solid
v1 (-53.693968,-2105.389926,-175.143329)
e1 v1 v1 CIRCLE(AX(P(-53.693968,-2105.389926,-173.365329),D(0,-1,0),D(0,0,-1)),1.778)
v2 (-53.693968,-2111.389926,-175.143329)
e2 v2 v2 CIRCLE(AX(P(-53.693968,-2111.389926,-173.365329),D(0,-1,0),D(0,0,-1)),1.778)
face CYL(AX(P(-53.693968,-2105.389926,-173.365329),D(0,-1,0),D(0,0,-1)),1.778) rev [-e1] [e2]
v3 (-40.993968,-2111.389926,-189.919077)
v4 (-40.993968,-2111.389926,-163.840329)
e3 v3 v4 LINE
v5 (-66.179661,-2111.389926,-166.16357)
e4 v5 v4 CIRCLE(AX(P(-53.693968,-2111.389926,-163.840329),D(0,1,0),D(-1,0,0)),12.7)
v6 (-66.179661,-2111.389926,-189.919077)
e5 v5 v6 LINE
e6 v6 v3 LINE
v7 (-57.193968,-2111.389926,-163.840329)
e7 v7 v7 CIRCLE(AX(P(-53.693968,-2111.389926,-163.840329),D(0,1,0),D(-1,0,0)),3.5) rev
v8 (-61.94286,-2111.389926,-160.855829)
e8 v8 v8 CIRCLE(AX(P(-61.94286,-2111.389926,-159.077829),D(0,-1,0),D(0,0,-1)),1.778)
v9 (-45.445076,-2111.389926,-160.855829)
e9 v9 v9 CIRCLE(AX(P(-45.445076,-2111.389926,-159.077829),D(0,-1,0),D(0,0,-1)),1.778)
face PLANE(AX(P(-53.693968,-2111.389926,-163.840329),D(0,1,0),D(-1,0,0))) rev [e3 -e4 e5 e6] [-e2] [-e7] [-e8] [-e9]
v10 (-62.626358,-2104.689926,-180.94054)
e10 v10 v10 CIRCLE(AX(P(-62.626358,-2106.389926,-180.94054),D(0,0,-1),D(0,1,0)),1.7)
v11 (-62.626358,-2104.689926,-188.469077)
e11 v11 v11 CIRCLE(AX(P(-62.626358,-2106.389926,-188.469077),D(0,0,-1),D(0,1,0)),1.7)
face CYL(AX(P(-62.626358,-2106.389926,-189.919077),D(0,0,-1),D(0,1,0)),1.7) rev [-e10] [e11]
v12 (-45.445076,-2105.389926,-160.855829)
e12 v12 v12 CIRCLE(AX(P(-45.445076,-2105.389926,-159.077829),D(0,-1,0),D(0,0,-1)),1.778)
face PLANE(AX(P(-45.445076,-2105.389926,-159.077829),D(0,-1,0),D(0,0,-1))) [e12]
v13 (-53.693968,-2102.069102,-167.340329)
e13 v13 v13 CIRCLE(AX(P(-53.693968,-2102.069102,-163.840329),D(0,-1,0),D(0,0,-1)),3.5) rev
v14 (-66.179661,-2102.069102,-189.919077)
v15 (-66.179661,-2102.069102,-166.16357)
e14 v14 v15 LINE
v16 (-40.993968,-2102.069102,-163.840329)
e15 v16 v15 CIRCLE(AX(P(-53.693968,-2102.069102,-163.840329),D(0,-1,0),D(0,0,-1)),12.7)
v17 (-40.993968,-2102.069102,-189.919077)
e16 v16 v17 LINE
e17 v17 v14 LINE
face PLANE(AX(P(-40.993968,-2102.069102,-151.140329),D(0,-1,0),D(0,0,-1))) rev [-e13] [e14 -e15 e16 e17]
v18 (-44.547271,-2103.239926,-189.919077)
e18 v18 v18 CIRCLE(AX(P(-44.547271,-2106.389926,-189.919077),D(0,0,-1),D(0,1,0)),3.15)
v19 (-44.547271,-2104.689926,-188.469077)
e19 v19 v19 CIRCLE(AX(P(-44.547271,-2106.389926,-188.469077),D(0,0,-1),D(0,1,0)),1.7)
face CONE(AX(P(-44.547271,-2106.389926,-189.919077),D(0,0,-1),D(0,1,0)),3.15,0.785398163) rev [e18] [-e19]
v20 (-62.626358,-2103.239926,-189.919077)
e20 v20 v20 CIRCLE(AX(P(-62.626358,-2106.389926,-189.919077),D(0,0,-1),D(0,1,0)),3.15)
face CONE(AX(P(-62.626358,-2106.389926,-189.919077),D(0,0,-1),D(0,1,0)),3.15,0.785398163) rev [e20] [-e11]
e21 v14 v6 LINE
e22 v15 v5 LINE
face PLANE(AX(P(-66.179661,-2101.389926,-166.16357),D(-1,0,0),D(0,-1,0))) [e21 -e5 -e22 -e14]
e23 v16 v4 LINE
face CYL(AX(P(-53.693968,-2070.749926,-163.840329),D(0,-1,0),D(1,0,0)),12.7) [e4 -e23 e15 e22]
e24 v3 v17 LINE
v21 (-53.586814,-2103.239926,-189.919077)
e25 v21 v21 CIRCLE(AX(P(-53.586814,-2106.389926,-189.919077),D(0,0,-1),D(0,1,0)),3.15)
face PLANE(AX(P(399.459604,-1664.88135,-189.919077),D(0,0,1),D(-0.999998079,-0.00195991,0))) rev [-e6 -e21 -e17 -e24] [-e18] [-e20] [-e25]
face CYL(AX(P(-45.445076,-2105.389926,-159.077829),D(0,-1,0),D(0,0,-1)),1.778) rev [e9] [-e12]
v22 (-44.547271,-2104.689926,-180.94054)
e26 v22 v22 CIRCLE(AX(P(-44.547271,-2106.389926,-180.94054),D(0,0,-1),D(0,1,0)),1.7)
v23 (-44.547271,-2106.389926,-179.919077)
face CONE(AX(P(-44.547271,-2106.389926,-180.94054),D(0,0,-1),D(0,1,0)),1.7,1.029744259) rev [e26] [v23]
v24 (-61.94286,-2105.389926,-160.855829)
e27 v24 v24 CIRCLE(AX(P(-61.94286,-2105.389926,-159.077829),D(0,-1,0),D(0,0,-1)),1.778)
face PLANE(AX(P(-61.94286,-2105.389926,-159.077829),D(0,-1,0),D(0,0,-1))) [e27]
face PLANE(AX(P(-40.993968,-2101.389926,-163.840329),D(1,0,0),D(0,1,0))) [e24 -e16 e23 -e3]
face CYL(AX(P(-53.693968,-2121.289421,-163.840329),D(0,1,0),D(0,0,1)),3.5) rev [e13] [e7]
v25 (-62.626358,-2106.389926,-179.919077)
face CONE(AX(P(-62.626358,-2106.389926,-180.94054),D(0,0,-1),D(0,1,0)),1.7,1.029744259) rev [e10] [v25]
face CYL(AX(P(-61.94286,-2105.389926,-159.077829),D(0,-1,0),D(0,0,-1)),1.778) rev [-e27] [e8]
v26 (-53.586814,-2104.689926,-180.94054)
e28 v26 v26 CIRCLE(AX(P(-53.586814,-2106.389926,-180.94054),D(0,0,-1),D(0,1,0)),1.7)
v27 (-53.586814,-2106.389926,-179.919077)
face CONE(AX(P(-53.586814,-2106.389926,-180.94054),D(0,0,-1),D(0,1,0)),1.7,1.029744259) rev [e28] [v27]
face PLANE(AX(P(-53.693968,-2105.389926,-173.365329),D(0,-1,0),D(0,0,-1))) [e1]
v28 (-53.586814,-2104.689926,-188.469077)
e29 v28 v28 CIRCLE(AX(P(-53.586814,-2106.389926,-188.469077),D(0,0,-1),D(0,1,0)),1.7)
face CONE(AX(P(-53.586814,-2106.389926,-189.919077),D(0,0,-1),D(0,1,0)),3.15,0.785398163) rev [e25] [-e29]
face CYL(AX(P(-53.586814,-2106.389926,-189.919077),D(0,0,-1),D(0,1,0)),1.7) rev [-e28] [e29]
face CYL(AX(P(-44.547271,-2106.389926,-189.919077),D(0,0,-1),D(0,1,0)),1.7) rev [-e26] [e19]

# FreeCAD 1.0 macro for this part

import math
import FreeCAD as App
import Part
import Sketcher
Q = App.Units.Quantity

doc = App.newDocument("Part")
params = doc.addObject("Spreadsheet::Sheet", "Params")
for row, (alias, value) in enumerate([
    ("sketch1_diameter", "25.4 mm"),
    ("pad1_length", "40.64 mm"),
    ("sketch2_diameter", "7 mm"),
    ("pocket1_length", "40.64 mm"),
    ("pocket2_length", "6 mm"),
    ("sketch4_radius", "12.7 mm"),
    ("pad2_length", "10 mm"),
    ("sketch5_height", "10 mm"),
    ("pad3_length", "7.284789 mm"),
    ("pad4_length", "30.64 mm"),
    ("sketch7_height", "10 mm"),
    ("sketch7_width", "3.15 mm"),
    ("groove_angle", "360 deg"),
    ("linearpattern_pitch", "9.039543 mm"),
    ("linearpattern2_pitch", "9.039543 mm"),
    ("sketch8_height", "10 mm"),
    ("sketch8_width", "3.15 mm"),
    ("groove2_angle", "360 deg"),
    ("sketch9_height", "10 mm"),
    ("sketch9_width", "3.15 mm"),
    ("groove3_angle", "360 deg"),
], start=1):
    params.set(f"A{row}", alias)
    params.set(f"B{row}", "=" + value)
    params.setAlias(f"B{row}", alias)

body = doc.addObject("PartDesign::Body", "Body")

sketch1 = body.newObject("Sketcher::SketchObject", "Sketch")
sketch1.AttachmentSupport = (doc.getObject("XZ_Plane"), [""])
sketch1.MapMode = "FlatFace"
sketch1.AttachmentOffset = App.Placement(App.Vector(0, 0, 2111.389926), App.Rotation())
sketch1.addGeometry(Part.Circle(App.Vector(-53.693968, -163.840329, 0), App.Vector(0, 0, 1), 12.7), False)
sketch1.addConstraint(Sketcher.Constraint("Diameter", 0, Q("25.4 mm")))
sketch1.addConstraint(Sketcher.Constraint("DistanceY", 0, 3, -1, 1, Q("163.840329 mm")))
sketch1.addConstraint(Sketcher.Constraint("DistanceX", 0, 3, -1, 1, Q("53.693968 mm")))
sketch1.setExpression("Constraints[0]", "Params.sketch1_diameter")
pad1 = body.newObject("PartDesign::Pad", "Pad")
pad1.Profile = sketch1
pad1.setExpression("Length", "Params.pad1_length")
pad1.Reversed = True

sketch2 = body.newObject("Sketcher::SketchObject", "Sketch001")
sketch2.AttachmentSupport = (doc.getObject("XZ_Plane"), [""])
sketch2.MapMode = "FlatFace"
sketch2.AttachmentOffset = App.Placement(App.Vector(0, 0, 2070.749926), App.Rotation())
sketch2.addGeometry(Part.Circle(App.Vector(-53.693968, -163.840329, 0), App.Vector(0, 0, 1), 3.5), False)
sketch2.addConstraint(Sketcher.Constraint("Diameter", 0, Q("7 mm")))
sketch2.addConstraint(Sketcher.Constraint("DistanceY", 0, 3, -1, 1, Q("163.840329 mm")))
sketch2.addConstraint(Sketcher.Constraint("DistanceX", 0, 3, -1, 1, Q("53.693968 mm")))
sketch2.setExpression("Constraints[0]", "Params.sketch2_diameter")
pocket1 = body.newObject("PartDesign::Pocket", "Pocket")
pocket1.Profile = sketch2
pocket1.setExpression("Length", "Params.pocket1_length")
pocket1.Reversed = True

sketch3 = body.newObject("Sketcher::SketchObject", "Sketch002")
sketch3.AttachmentSupport = (doc.getObject("XZ_Plane"), [""])
sketch3.MapMode = "FlatFace"
sketch3.AttachmentOffset = App.Placement(App.Vector(0, 0, 2111.389926), App.Rotation())
sketch3.addGeometry(Part.Circle(App.Vector(-61.94286, -159.077829, 0), App.Vector(0, 0, 1), 1.778), False)
sketch3.addGeometry(Part.Circle(App.Vector(-53.693968, -173.365329, 0), App.Vector(0, 0, 1), 1.778), False)
sketch3.addGeometry(Part.Circle(App.Vector(-45.445076, -159.077829, 0), App.Vector(0, 0, 1), 1.778), False)
sketch3.addConstraint(Sketcher.Constraint("Equal", 0, 1))
sketch3.addConstraint(Sketcher.Constraint("Equal", 1, 2))
sketch3.addConstraint(Sketcher.Constraint("Horizontal", 0, 3, 2, 3))
sketch3.addConstraint(Sketcher.Constraint("Diameter", 0, Q("3.556 mm")))
sketch3.addConstraint(Sketcher.Constraint("DistanceY", 1, 3, 0, 3, Q("14.2875 mm")))
sketch3.addConstraint(Sketcher.Constraint("DistanceX", 0, 3, -1, 1, Q("61.94286 mm")))
sketch3.addConstraint(Sketcher.Constraint("DistanceY", 0, 3, -1, 1, Q("159.077829 mm")))
sketch3.addConstraint(Sketcher.Constraint("DistanceX", 0, 3, 1, 3, Q("8.248892 mm")))
sketch3.addConstraint(Sketcher.Constraint("DistanceX", 1, 3, 2, 3, Q("8.248892 mm")))
pocket2 = body.newObject("PartDesign::Pocket", "Pocket001")
pocket2.Profile = sketch3
pocket2.setExpression("Length", "Params.pocket2_length")

sketch4 = body.newObject("Sketcher::SketchObject", "Sketch003")
sketch4.AttachmentSupport = (doc.getObject("XZ_Plane"), [""])
sketch4.MapMode = "FlatFace"
sketch4.AttachmentOffset = App.Placement(App.Vector(0, 0, 2111.389926), App.Rotation())
sketch4.addGeometry(Part.LineSegment(App.Vector(-40.993968, -182.634288, 0), App.Vector(-40.993968, -163.840329, 0)), False)
sketch4.addGeometry(Part.ArcOfCircle(Part.Circle(App.Vector(-53.693968, -163.840329, 0), App.Vector(0, 0, 1), 12.7), math.radians(-169.459393), math.radians(0)), False)
sketch4.addGeometry(Part.LineSegment(App.Vector(-66.179661, -166.16357, 0), App.Vector(-66.179661, -182.634288, 0)), False)
sketch4.addGeometry(Part.LineSegment(App.Vector(-66.179661, -182.634288, 0), App.Vector(-40.993968, -182.634288, 0)), False)
sketch4.addConstraint(Sketcher.Constraint("Tangent", 0, 2, 1, 2))
sketch4.addConstraint(Sketcher.Constraint("Coincident", 1, 1, 2, 1))
sketch4.addConstraint(Sketcher.Constraint("Coincident", 2, 2, 3, 1))
sketch4.addConstraint(Sketcher.Constraint("Coincident", 3, 2, 0, 1))
sketch4.addConstraint(Sketcher.Constraint("Vertical", 0))
sketch4.addConstraint(Sketcher.Constraint("Vertical", 2))
sketch4.addConstraint(Sketcher.Constraint("Horizontal", 3))
sketch4.addConstraint(Sketcher.Constraint("Radius", 1, Q("12.7 mm")))
sketch4.addConstraint(Sketcher.Constraint("DistanceY", 0, 1, 0, 2, Q("18.793959 mm")))
sketch4.addConstraint(Sketcher.Constraint("DistanceX", 3, 1, 3, 2, Q("25.185694 mm")))
sketch4.addConstraint(Sketcher.Constraint("DistanceY", 1, 3, -1, 1, Q("163.840329 mm")))
sketch4.addConstraint(Sketcher.Constraint("DistanceX", 1, 1, -1, 1, Q("66.179661 mm")))
sketch4.setExpression("Constraints[7]", "Params.sketch4_radius")
pad2 = body.newObject("PartDesign::Pad", "Pad001")
pad2.Profile = sketch4
pad2.setExpression("Length", "Params.pad2_length")
pad2.Reversed = True

sketch5 = body.newObject("Sketcher::SketchObject", "Sketch004")
sketch5.AttachmentSupport = (doc.getObject("XY_Plane"), [""])
sketch5.MapMode = "FlatFace"
sketch5.AttachmentOffset = App.Placement(App.Vector(0, 0, -182.634288), App.Rotation())
sketch5.addGeometry(Part.LineSegment(App.Vector(-40.993968, -2101.389926, 0), App.Vector(-40.993968, -2111.389926, 0)), False)
sketch5.addGeometry(Part.LineSegment(App.Vector(-40.993968, -2111.389926, 0), App.Vector(-66.179661, -2111.389926, 0)), False)
sketch5.addGeometry(Part.LineSegment(App.Vector(-66.179661, -2111.389926, 0), App.Vector(-66.179661, -2101.389926, 0)), False)
sketch5.addGeometry(Part.LineSegment(App.Vector(-66.179661, -2101.389926, 0), App.Vector(-40.993968, -2101.389926, 0)), False)
sketch5.addConstraint(Sketcher.Constraint("Coincident", 0, 2, 1, 1))
sketch5.addConstraint(Sketcher.Constraint("Coincident", 1, 2, 2, 1))
sketch5.addConstraint(Sketcher.Constraint("Coincident", 2, 2, 3, 1))
sketch5.addConstraint(Sketcher.Constraint("Coincident", 3, 2, 0, 1))
sketch5.addConstraint(Sketcher.Constraint("Vertical", 0))
sketch5.addConstraint(Sketcher.Constraint("Horizontal", 1))
sketch5.addConstraint(Sketcher.Constraint("Vertical", 2))
sketch5.addConstraint(Sketcher.Constraint("Horizontal", 3))
sketch5.addConstraint(Sketcher.Constraint("DistanceY", 0, 2, 0, 1, Q("10 mm")))
sketch5.addConstraint(Sketcher.Constraint("DistanceX", 1, 2, 1, 1, Q("25.185694 mm")))
sketch5.addConstraint(Sketcher.Constraint("DistanceX", 1, 2, -1, 1, Q("66.179661 mm")))
sketch5.addConstraint(Sketcher.Constraint("DistanceY", 0, 2, -1, 1, Q("2111.389926 mm")))
sketch5.setExpression("Constraints[8]", "Params.sketch5_height")
pad3 = body.newObject("PartDesign::Pad", "Pad002")
pad3.Profile = sketch5
pad3.setExpression("Length", "Params.pad3_length")
pad3.Reversed = True

sketch6 = body.newObject("Sketcher::SketchObject", "Sketch005")
sketch6.AttachmentSupport = (doc.getObject("XZ_Plane"), [""])
sketch6.MapMode = "FlatFace"
sketch6.AttachmentOffset = App.Placement(App.Vector(0, 0, 2070.749926), App.Rotation())
sketch6.addGeometry(Part.LineSegment(App.Vector(-66.179661, -189.919077, 0), App.Vector(-66.179661, -163.840329, 0)), False)
sketch6.addGeometry(Part.ArcOfCircle(Part.Circle(App.Vector(-53.586814, -163.840329, 0), App.Vector(0, 0, 1), 12.592847), math.radians(180), math.radians(360)), False)
sketch6.addGeometry(Part.LineSegment(App.Vector(-40.993968, -163.840329, 0), App.Vector(-40.993968, -189.919077, 0)), False)
sketch6.addGeometry(Part.LineSegment(App.Vector(-40.993968, -189.919077, 0), App.Vector(-66.179661, -189.919077, 0)), False)
sketch6.addConstraint(Sketcher.Constraint("Tangent", 0, 2, 1, 1))
sketch6.addConstraint(Sketcher.Constraint("Tangent", 1, 2, 2, 1))
sketch6.addConstraint(Sketcher.Constraint("Coincident", 2, 2, 3, 1))
sketch6.addConstraint(Sketcher.Constraint("Coincident", 3, 2, 0, 1))
sketch6.addConstraint(Sketcher.Constraint("Vertical", 0))
sketch6.addConstraint(Sketcher.Constraint("Vertical", 2))
sketch6.addConstraint(Sketcher.Constraint("Horizontal", 3))
sketch6.addConstraint(Sketcher.Constraint("Radius", 1, Q("12.592847 mm")))
sketch6.addConstraint(Sketcher.Constraint("DistanceY", 0, 1, 0, 2, Q("26.078748 mm")))
sketch6.addConstraint(Sketcher.Constraint("DistanceY", 1, 3, -1, 1, Q("163.840329 mm")))
sketch6.addConstraint(Sketcher.Constraint("DistanceX", 0, 2, -1, 1, Q("66.179661 mm")))
pad4 = body.newObject("PartDesign::Pad", "Pad003")
pad4.Profile = sketch6
pad4.setExpression("Length", "Params.pad4_length")

sketch7 = body.newObject("Sketcher::SketchObject", "Sketch006")
sketch7.AttachmentSupport = (doc.getObject("YZ_Plane"), [""])
sketch7.MapMode = "FlatFace"
sketch7.AttachmentOffset = App.Placement(App.Vector(0, 0, -53.586814), App.Rotation())
sketch7.addGeometry(Part.LineSegment(App.Vector(-2075.749926, -179.919077, 0), App.Vector(-2075.749926, -189.919077, 0)), False)
sketch7.addGeometry(Part.LineSegment(App.Vector(-2075.749926, -189.919077, 0), App.Vector(-2072.599926, -189.919077, 0)), False)
sketch7.addGeometry(Part.LineSegment(App.Vector(-2072.599926, -189.919077, 0), App.Vector(-2074.049926, -188.469077, 0)), False)
sketch7.addGeometry(Part.LineSegment(App.Vector(-2074.049926, -188.469077, 0), App.Vector(-2074.049926, -180.94054, 0)), False)
sketch7.addGeometry(Part.LineSegment(App.Vector(-2074.049926, -180.94054, 0), App.Vector(-2075.749926, -179.919077, 0)), False)
sketch7.addGeometry(Part.LineSegment(App.Vector(-2075.749926, -189.919077, 0), App.Vector(-2075.749926, -179.919077, 0)), True)
sketch7.addConstraint(Sketcher.Constraint("Coincident", 0, 2, 1, 1))
sketch7.addConstraint(Sketcher.Constraint("Coincident", 1, 2, 2, 1))
sketch7.addConstraint(Sketcher.Constraint("Coincident", 2, 2, 3, 1))
sketch7.addConstraint(Sketcher.Constraint("Coincident", 3, 2, 4, 1))
sketch7.addConstraint(Sketcher.Constraint("Coincident", 4, 2, 0, 1))
sketch7.addConstraint(Sketcher.Constraint("Vertical", 0))
sketch7.addConstraint(Sketcher.Constraint("Horizontal", 1))
sketch7.addConstraint(Sketcher.Constraint("Vertical", 3))
sketch7.addConstraint(Sketcher.Constraint("Vertical", 5))
sketch7.addConstraint(Sketcher.Constraint("Coincident", 5, 1, 0, 2))
sketch7.addConstraint(Sketcher.Constraint("Equal", 0, 5))
sketch7.addConstraint(Sketcher.Constraint("DistanceY", 0, 2, 0, 1, Q("10 mm")))
sketch7.addConstraint(Sketcher.Constraint("Angle", 2, Q("135 deg")))
sketch7.addConstraint(Sketcher.Constraint("Angle", 4, Q("149 deg")))
sketch7.addConstraint(Sketcher.Constraint("DistanceX", 1, 1, 1, 2, Q("3.15 mm")))
sketch7.addConstraint(Sketcher.Constraint("DistanceX", 0, 2, 2, 2, Q("1.7 mm")))
sketch7.addConstraint(Sketcher.Constraint("DistanceY", 3, 2, -1, 1, Q("180.94054 mm")))
sketch7.addConstraint(Sketcher.Constraint("DistanceX", 0, 2, -1, 1, Q("2075.749926 mm")))
sketch7.setExpression("Constraints[11]", "Params.sketch7_height")
sketch7.setExpression("Constraints[14]", "Params.sketch7_width")
groove = body.newObject("PartDesign::Groove", "Groove")
groove.Profile = sketch7
groove.ReferenceAxis = (sketch7, ["Axis0"])
groove.setExpression("Angle", "Params.groove_angle")
doc.recompute()

linearpattern = body.newObject("PartDesign::LinearPattern", "LinearPattern")
linearpattern.Originals = [groove]
linearpattern.Direction = (doc.getObject("X_Axis"), [""])
linearpattern.Mode = "offset"
linearpattern.setExpression("Offset", "Params.linearpattern_pitch")
linearpattern.Occurrences = 2
linearpattern.Reversed = True
body.Tip = linearpattern
doc.recompute()

linearpattern2 = body.newObject("PartDesign::LinearPattern", "LinearPattern001")
linearpattern2.Originals = [groove]
linearpattern2.Direction = (doc.getObject("X_Axis"), [""])
linearpattern2.Mode = "offset"
linearpattern2.setExpression("Offset", "Params.linearpattern2_pitch")
linearpattern2.Occurrences = 2
body.Tip = linearpattern2
doc.recompute()

datumplane = body.newObject("PartDesign::Plane", "DatumPlane")
datumplane.AttachmentSupport = (doc.getObject("XZ_Plane"), [""])
datumplane.MapMode = "FlatFace"
datumplane.AttachmentOffset = App.Placement(App.Vector(0, 0, 2091.069926), App.Rotation())
mirrored = body.newObject("PartDesign::Mirrored", "Mirrored")
mirrored.Originals = [groove]
mirrored.MirrorPlane = (datumplane, [""])
body.Tip = mirrored

sketch8 = body.newObject("Sketcher::SketchObject", "Sketch007")
sketch8.AttachmentSupport = (doc.getObject("YZ_Plane"), [""])
sketch8.MapMode = "FlatFace"
sketch8.AttachmentOffset = App.Placement(App.Vector(0, 0, -62.626358), App.Rotation())
sketch8.addGeometry(Part.LineSegment(App.Vector(-2106.389926, -189.919077, 0), App.Vector(-2106.389926, -179.919077, 0)), False)
sketch8.addGeometry(Part.LineSegment(App.Vector(-2106.389926, -179.919077, 0), App.Vector(-2108.089926, -180.94054, 0)), False)
sketch8.addGeometry(Part.LineSegment(App.Vector(-2108.089926, -180.94054, 0), App.Vector(-2108.089926, -188.469077, 0)), False)
sketch8.addGeometry(Part.LineSegment(App.Vector(-2108.089926, -188.469077, 0), App.Vector(-2109.539926, -189.919077, 0)), False)
sketch8.addGeometry(Part.LineSegment(App.Vector(-2109.539926, -189.919077, 0), App.Vector(-2106.389926, -189.919077, 0)), False)
sketch8.addGeometry(Part.LineSegment(App.Vector(-2106.389926, -179.919077, 0), App.Vector(-2106.389926, -189.919077, 0)), True)
sketch8.addConstraint(Sketcher.Constraint("Coincident", 0, 2, 1, 1))
sketch8.addConstraint(Sketcher.Constraint("Coincident", 1, 2, 2, 1))
sketch8.addConstraint(Sketcher.Constraint("Coincident", 2, 2, 3, 1))
sketch8.addConstraint(Sketcher.Constraint("Coincident", 3, 2, 4, 1))
sketch8.addConstraint(Sketcher.Constraint("Coincident", 4, 2, 0, 1))
sketch8.addConstraint(Sketcher.Constraint("Vertical", 0))
sketch8.addConstraint(Sketcher.Constraint("Vertical", 2))
sketch8.addConstraint(Sketcher.Constraint("Horizontal", 4))
sketch8.addConstraint(Sketcher.Constraint("Vertical", 5))
sketch8.addConstraint(Sketcher.Constraint("Coincident", 5, 1, 0, 2))
sketch8.addConstraint(Sketcher.Constraint("Horizontal", 3, 2, 5, 2))
sketch8.addConstraint(Sketcher.Constraint("DistanceY", 0, 1, 0, 2, Q("10 mm")))
sketch8.addConstraint(Sketcher.Constraint("Angle", 1, Q("-149 deg")))
sketch8.addConstraint(Sketcher.Constraint("Angle", 3, Q("-135 deg")))
sketch8.addConstraint(Sketcher.Constraint("DistanceX", 4, 1, 4, 2, Q("3.15 mm")))
sketch8.addConstraint(Sketcher.Constraint("DistanceX", 1, 2, 0, 2, Q("1.7 mm")))
sketch8.addConstraint(Sketcher.Constraint("DistanceY", 1, 2, -1, 1, Q("180.94054 mm")))
sketch8.addConstraint(Sketcher.Constraint("DistanceX", 0, 2, -1, 1, Q("2106.389926 mm")))
sketch8.setExpression("Constraints[11]", "Params.sketch8_height")
sketch8.setExpression("Constraints[14]", "Params.sketch8_width")
groove2 = body.newObject("PartDesign::Groove", "Groove001")
groove2.Profile = sketch8
groove2.ReferenceAxis = (sketch8, ["Axis0"])
groove2.setExpression("Angle", "Params.groove2_angle")

sketch9 = body.newObject("Sketcher::SketchObject", "Sketch008")
sketch9.AttachmentSupport = (doc.getObject("YZ_Plane"), [""])
sketch9.MapMode = "FlatFace"
sketch9.AttachmentOffset = App.Placement(App.Vector(0, 0, -44.547271), App.Rotation())
sketch9.addGeometry(Part.LineSegment(App.Vector(-2106.389926, -189.919077, 0), App.Vector(-2106.389926, -179.919077, 0)), False)
sketch9.addGeometry(Part.LineSegment(App.Vector(-2106.389926, -179.919077, 0), App.Vector(-2108.089926, -180.94054, 0)), False)
sketch9.addGeometry(Part.LineSegment(App.Vector(-2108.089926, -180.94054, 0), App.Vector(-2108.089926, -188.469077, 0)), False)
sketch9.addGeometry(Part.LineSegment(App.Vector(-2108.089926, -188.469077, 0), App.Vector(-2109.539926, -189.919077, 0)), False)
sketch9.addGeometry(Part.LineSegment(App.Vector(-2109.539926, -189.919077, 0), App.Vector(-2106.389926, -189.919077, 0)), False)
sketch9.addGeometry(Part.LineSegment(App.Vector(-2106.389926, -179.919077, 0), App.Vector(-2106.389926, -189.919077, 0)), True)
sketch9.addConstraint(Sketcher.Constraint("Coincident", 0, 2, 1, 1))
sketch9.addConstraint(Sketcher.Constraint("Coincident", 1, 2, 2, 1))
sketch9.addConstraint(Sketcher.Constraint("Coincident", 2, 2, 3, 1))
sketch9.addConstraint(Sketcher.Constraint("Coincident", 3, 2, 4, 1))
sketch9.addConstraint(Sketcher.Constraint("Coincident", 4, 2, 0, 1))
sketch9.addConstraint(Sketcher.Constraint("Vertical", 0))
sketch9.addConstraint(Sketcher.Constraint("Vertical", 2))
sketch9.addConstraint(Sketcher.Constraint("Horizontal", 4))
sketch9.addConstraint(Sketcher.Constraint("Vertical", 5))
sketch9.addConstraint(Sketcher.Constraint("Coincident", 5, 1, 0, 2))
sketch9.addConstraint(Sketcher.Constraint("Horizontal", 3, 2, 5, 2))
sketch9.addConstraint(Sketcher.Constraint("DistanceY", 0, 1, 0, 2, Q("10 mm")))
sketch9.addConstraint(Sketcher.Constraint("Angle", 1, Q("-149 deg")))
sketch9.addConstraint(Sketcher.Constraint("Angle", 3, Q("-135 deg")))
sketch9.addConstraint(Sketcher.Constraint("DistanceX", 4, 1, 4, 2, Q("3.15 mm")))
sketch9.addConstraint(Sketcher.Constraint("DistanceX", 1, 2, 0, 2, Q("1.7 mm")))
sketch9.addConstraint(Sketcher.Constraint("DistanceY", 1, 2, -1, 1, Q("180.94054 mm")))
sketch9.addConstraint(Sketcher.Constraint("DistanceX", 0, 2, -1, 1, Q("2106.389926 mm")))
sketch9.setExpression("Constraints[11]", "Params.sketch9_height")
sketch9.setExpression("Constraints[14]", "Params.sketch9_width")
groove3 = body.newObject("PartDesign::Groove", "Groove002")
groove3.Profile = sketch9
groove3.ReferenceAxis = (sketch9, ["Axis0"])
groove3.setExpression("Angle", "Params.groove3_angle")

sketch10 = body.newObject("Sketcher::SketchObject", "Sketch009")
sketch10.AttachmentSupport = (doc.getObject("XY_Plane"), [""])
sketch10.MapMode = "FlatFace"
sketch10.AttachmentOffset = App.Placement(App.Vector(0, 0, -189.919077), App.Rotation())
sketch10.addGeometry(Part.LineSegment(App.Vector(-40.993968, -2070.749926, 0), App.Vector(-40.993968, -2102.069102, 0)), False)
sketch10.addGeometry(Part.LineSegment(App.Vector(-40.993968, -2102.069102, 0), App.Vector(-67.713121, -2102.069102, 0)), False)
sketch10.addGeometry(Part.LineSegment(App.Vector(-67.713121, -2102.069102, 0), App.Vector(-67.713121, -2070.749926, 0)), False)
sketch10.addGeometry(Part.LineSegment(App.Vector(-67.713121, -2070.749926, 0), App.Vector(-40.993968, -2070.749926, 0)), False)
sketch10.addConstraint(Sketcher.Constraint("Coincident", 0, 2, 1, 1))
sketch10.addConstraint(Sketcher.Constraint("Coincident", 1, 2, 2, 1))
sketch10.addConstraint(Sketcher.Constraint("Coincident", 2, 2, 3, 1))
sketch10.addConstraint(Sketcher.Constraint("Coincident", 3, 2, 0, 1))
sketch10.addConstraint(Sketcher.Constraint("Vertical", 0))
sketch10.addConstraint(Sketcher.Constraint("Horizontal", 1))
sketch10.addConstraint(Sketcher.Constraint("Vertical", 2))
sketch10.addConstraint(Sketcher.Constraint("Horizontal", 3))
sketch10.addConstraint(Sketcher.Constraint("DistanceY", 0, 2, -1, 1, Q("2102.069102 mm")))
sketch10.addConstraint(Sketcher.Constraint("DistanceX", 1, 2, 1, 1, Q("26.719153 mm")))
sketch10.addConstraint(Sketcher.Constraint("DistanceY", 0, 2, 0, 1, Q("31.319175 mm")))
sketch10.addConstraint(Sketcher.Constraint("DistanceX", 1, 2, -1, 1, Q("67.713121 mm")))
pocket3 = body.newObject("PartDesign::Pocket", "Pocket002")
pocket3.Profile = sketch10
pocket3.Type = "ThroughAll"
pocket3.Reversed = True

doc.recompute()
